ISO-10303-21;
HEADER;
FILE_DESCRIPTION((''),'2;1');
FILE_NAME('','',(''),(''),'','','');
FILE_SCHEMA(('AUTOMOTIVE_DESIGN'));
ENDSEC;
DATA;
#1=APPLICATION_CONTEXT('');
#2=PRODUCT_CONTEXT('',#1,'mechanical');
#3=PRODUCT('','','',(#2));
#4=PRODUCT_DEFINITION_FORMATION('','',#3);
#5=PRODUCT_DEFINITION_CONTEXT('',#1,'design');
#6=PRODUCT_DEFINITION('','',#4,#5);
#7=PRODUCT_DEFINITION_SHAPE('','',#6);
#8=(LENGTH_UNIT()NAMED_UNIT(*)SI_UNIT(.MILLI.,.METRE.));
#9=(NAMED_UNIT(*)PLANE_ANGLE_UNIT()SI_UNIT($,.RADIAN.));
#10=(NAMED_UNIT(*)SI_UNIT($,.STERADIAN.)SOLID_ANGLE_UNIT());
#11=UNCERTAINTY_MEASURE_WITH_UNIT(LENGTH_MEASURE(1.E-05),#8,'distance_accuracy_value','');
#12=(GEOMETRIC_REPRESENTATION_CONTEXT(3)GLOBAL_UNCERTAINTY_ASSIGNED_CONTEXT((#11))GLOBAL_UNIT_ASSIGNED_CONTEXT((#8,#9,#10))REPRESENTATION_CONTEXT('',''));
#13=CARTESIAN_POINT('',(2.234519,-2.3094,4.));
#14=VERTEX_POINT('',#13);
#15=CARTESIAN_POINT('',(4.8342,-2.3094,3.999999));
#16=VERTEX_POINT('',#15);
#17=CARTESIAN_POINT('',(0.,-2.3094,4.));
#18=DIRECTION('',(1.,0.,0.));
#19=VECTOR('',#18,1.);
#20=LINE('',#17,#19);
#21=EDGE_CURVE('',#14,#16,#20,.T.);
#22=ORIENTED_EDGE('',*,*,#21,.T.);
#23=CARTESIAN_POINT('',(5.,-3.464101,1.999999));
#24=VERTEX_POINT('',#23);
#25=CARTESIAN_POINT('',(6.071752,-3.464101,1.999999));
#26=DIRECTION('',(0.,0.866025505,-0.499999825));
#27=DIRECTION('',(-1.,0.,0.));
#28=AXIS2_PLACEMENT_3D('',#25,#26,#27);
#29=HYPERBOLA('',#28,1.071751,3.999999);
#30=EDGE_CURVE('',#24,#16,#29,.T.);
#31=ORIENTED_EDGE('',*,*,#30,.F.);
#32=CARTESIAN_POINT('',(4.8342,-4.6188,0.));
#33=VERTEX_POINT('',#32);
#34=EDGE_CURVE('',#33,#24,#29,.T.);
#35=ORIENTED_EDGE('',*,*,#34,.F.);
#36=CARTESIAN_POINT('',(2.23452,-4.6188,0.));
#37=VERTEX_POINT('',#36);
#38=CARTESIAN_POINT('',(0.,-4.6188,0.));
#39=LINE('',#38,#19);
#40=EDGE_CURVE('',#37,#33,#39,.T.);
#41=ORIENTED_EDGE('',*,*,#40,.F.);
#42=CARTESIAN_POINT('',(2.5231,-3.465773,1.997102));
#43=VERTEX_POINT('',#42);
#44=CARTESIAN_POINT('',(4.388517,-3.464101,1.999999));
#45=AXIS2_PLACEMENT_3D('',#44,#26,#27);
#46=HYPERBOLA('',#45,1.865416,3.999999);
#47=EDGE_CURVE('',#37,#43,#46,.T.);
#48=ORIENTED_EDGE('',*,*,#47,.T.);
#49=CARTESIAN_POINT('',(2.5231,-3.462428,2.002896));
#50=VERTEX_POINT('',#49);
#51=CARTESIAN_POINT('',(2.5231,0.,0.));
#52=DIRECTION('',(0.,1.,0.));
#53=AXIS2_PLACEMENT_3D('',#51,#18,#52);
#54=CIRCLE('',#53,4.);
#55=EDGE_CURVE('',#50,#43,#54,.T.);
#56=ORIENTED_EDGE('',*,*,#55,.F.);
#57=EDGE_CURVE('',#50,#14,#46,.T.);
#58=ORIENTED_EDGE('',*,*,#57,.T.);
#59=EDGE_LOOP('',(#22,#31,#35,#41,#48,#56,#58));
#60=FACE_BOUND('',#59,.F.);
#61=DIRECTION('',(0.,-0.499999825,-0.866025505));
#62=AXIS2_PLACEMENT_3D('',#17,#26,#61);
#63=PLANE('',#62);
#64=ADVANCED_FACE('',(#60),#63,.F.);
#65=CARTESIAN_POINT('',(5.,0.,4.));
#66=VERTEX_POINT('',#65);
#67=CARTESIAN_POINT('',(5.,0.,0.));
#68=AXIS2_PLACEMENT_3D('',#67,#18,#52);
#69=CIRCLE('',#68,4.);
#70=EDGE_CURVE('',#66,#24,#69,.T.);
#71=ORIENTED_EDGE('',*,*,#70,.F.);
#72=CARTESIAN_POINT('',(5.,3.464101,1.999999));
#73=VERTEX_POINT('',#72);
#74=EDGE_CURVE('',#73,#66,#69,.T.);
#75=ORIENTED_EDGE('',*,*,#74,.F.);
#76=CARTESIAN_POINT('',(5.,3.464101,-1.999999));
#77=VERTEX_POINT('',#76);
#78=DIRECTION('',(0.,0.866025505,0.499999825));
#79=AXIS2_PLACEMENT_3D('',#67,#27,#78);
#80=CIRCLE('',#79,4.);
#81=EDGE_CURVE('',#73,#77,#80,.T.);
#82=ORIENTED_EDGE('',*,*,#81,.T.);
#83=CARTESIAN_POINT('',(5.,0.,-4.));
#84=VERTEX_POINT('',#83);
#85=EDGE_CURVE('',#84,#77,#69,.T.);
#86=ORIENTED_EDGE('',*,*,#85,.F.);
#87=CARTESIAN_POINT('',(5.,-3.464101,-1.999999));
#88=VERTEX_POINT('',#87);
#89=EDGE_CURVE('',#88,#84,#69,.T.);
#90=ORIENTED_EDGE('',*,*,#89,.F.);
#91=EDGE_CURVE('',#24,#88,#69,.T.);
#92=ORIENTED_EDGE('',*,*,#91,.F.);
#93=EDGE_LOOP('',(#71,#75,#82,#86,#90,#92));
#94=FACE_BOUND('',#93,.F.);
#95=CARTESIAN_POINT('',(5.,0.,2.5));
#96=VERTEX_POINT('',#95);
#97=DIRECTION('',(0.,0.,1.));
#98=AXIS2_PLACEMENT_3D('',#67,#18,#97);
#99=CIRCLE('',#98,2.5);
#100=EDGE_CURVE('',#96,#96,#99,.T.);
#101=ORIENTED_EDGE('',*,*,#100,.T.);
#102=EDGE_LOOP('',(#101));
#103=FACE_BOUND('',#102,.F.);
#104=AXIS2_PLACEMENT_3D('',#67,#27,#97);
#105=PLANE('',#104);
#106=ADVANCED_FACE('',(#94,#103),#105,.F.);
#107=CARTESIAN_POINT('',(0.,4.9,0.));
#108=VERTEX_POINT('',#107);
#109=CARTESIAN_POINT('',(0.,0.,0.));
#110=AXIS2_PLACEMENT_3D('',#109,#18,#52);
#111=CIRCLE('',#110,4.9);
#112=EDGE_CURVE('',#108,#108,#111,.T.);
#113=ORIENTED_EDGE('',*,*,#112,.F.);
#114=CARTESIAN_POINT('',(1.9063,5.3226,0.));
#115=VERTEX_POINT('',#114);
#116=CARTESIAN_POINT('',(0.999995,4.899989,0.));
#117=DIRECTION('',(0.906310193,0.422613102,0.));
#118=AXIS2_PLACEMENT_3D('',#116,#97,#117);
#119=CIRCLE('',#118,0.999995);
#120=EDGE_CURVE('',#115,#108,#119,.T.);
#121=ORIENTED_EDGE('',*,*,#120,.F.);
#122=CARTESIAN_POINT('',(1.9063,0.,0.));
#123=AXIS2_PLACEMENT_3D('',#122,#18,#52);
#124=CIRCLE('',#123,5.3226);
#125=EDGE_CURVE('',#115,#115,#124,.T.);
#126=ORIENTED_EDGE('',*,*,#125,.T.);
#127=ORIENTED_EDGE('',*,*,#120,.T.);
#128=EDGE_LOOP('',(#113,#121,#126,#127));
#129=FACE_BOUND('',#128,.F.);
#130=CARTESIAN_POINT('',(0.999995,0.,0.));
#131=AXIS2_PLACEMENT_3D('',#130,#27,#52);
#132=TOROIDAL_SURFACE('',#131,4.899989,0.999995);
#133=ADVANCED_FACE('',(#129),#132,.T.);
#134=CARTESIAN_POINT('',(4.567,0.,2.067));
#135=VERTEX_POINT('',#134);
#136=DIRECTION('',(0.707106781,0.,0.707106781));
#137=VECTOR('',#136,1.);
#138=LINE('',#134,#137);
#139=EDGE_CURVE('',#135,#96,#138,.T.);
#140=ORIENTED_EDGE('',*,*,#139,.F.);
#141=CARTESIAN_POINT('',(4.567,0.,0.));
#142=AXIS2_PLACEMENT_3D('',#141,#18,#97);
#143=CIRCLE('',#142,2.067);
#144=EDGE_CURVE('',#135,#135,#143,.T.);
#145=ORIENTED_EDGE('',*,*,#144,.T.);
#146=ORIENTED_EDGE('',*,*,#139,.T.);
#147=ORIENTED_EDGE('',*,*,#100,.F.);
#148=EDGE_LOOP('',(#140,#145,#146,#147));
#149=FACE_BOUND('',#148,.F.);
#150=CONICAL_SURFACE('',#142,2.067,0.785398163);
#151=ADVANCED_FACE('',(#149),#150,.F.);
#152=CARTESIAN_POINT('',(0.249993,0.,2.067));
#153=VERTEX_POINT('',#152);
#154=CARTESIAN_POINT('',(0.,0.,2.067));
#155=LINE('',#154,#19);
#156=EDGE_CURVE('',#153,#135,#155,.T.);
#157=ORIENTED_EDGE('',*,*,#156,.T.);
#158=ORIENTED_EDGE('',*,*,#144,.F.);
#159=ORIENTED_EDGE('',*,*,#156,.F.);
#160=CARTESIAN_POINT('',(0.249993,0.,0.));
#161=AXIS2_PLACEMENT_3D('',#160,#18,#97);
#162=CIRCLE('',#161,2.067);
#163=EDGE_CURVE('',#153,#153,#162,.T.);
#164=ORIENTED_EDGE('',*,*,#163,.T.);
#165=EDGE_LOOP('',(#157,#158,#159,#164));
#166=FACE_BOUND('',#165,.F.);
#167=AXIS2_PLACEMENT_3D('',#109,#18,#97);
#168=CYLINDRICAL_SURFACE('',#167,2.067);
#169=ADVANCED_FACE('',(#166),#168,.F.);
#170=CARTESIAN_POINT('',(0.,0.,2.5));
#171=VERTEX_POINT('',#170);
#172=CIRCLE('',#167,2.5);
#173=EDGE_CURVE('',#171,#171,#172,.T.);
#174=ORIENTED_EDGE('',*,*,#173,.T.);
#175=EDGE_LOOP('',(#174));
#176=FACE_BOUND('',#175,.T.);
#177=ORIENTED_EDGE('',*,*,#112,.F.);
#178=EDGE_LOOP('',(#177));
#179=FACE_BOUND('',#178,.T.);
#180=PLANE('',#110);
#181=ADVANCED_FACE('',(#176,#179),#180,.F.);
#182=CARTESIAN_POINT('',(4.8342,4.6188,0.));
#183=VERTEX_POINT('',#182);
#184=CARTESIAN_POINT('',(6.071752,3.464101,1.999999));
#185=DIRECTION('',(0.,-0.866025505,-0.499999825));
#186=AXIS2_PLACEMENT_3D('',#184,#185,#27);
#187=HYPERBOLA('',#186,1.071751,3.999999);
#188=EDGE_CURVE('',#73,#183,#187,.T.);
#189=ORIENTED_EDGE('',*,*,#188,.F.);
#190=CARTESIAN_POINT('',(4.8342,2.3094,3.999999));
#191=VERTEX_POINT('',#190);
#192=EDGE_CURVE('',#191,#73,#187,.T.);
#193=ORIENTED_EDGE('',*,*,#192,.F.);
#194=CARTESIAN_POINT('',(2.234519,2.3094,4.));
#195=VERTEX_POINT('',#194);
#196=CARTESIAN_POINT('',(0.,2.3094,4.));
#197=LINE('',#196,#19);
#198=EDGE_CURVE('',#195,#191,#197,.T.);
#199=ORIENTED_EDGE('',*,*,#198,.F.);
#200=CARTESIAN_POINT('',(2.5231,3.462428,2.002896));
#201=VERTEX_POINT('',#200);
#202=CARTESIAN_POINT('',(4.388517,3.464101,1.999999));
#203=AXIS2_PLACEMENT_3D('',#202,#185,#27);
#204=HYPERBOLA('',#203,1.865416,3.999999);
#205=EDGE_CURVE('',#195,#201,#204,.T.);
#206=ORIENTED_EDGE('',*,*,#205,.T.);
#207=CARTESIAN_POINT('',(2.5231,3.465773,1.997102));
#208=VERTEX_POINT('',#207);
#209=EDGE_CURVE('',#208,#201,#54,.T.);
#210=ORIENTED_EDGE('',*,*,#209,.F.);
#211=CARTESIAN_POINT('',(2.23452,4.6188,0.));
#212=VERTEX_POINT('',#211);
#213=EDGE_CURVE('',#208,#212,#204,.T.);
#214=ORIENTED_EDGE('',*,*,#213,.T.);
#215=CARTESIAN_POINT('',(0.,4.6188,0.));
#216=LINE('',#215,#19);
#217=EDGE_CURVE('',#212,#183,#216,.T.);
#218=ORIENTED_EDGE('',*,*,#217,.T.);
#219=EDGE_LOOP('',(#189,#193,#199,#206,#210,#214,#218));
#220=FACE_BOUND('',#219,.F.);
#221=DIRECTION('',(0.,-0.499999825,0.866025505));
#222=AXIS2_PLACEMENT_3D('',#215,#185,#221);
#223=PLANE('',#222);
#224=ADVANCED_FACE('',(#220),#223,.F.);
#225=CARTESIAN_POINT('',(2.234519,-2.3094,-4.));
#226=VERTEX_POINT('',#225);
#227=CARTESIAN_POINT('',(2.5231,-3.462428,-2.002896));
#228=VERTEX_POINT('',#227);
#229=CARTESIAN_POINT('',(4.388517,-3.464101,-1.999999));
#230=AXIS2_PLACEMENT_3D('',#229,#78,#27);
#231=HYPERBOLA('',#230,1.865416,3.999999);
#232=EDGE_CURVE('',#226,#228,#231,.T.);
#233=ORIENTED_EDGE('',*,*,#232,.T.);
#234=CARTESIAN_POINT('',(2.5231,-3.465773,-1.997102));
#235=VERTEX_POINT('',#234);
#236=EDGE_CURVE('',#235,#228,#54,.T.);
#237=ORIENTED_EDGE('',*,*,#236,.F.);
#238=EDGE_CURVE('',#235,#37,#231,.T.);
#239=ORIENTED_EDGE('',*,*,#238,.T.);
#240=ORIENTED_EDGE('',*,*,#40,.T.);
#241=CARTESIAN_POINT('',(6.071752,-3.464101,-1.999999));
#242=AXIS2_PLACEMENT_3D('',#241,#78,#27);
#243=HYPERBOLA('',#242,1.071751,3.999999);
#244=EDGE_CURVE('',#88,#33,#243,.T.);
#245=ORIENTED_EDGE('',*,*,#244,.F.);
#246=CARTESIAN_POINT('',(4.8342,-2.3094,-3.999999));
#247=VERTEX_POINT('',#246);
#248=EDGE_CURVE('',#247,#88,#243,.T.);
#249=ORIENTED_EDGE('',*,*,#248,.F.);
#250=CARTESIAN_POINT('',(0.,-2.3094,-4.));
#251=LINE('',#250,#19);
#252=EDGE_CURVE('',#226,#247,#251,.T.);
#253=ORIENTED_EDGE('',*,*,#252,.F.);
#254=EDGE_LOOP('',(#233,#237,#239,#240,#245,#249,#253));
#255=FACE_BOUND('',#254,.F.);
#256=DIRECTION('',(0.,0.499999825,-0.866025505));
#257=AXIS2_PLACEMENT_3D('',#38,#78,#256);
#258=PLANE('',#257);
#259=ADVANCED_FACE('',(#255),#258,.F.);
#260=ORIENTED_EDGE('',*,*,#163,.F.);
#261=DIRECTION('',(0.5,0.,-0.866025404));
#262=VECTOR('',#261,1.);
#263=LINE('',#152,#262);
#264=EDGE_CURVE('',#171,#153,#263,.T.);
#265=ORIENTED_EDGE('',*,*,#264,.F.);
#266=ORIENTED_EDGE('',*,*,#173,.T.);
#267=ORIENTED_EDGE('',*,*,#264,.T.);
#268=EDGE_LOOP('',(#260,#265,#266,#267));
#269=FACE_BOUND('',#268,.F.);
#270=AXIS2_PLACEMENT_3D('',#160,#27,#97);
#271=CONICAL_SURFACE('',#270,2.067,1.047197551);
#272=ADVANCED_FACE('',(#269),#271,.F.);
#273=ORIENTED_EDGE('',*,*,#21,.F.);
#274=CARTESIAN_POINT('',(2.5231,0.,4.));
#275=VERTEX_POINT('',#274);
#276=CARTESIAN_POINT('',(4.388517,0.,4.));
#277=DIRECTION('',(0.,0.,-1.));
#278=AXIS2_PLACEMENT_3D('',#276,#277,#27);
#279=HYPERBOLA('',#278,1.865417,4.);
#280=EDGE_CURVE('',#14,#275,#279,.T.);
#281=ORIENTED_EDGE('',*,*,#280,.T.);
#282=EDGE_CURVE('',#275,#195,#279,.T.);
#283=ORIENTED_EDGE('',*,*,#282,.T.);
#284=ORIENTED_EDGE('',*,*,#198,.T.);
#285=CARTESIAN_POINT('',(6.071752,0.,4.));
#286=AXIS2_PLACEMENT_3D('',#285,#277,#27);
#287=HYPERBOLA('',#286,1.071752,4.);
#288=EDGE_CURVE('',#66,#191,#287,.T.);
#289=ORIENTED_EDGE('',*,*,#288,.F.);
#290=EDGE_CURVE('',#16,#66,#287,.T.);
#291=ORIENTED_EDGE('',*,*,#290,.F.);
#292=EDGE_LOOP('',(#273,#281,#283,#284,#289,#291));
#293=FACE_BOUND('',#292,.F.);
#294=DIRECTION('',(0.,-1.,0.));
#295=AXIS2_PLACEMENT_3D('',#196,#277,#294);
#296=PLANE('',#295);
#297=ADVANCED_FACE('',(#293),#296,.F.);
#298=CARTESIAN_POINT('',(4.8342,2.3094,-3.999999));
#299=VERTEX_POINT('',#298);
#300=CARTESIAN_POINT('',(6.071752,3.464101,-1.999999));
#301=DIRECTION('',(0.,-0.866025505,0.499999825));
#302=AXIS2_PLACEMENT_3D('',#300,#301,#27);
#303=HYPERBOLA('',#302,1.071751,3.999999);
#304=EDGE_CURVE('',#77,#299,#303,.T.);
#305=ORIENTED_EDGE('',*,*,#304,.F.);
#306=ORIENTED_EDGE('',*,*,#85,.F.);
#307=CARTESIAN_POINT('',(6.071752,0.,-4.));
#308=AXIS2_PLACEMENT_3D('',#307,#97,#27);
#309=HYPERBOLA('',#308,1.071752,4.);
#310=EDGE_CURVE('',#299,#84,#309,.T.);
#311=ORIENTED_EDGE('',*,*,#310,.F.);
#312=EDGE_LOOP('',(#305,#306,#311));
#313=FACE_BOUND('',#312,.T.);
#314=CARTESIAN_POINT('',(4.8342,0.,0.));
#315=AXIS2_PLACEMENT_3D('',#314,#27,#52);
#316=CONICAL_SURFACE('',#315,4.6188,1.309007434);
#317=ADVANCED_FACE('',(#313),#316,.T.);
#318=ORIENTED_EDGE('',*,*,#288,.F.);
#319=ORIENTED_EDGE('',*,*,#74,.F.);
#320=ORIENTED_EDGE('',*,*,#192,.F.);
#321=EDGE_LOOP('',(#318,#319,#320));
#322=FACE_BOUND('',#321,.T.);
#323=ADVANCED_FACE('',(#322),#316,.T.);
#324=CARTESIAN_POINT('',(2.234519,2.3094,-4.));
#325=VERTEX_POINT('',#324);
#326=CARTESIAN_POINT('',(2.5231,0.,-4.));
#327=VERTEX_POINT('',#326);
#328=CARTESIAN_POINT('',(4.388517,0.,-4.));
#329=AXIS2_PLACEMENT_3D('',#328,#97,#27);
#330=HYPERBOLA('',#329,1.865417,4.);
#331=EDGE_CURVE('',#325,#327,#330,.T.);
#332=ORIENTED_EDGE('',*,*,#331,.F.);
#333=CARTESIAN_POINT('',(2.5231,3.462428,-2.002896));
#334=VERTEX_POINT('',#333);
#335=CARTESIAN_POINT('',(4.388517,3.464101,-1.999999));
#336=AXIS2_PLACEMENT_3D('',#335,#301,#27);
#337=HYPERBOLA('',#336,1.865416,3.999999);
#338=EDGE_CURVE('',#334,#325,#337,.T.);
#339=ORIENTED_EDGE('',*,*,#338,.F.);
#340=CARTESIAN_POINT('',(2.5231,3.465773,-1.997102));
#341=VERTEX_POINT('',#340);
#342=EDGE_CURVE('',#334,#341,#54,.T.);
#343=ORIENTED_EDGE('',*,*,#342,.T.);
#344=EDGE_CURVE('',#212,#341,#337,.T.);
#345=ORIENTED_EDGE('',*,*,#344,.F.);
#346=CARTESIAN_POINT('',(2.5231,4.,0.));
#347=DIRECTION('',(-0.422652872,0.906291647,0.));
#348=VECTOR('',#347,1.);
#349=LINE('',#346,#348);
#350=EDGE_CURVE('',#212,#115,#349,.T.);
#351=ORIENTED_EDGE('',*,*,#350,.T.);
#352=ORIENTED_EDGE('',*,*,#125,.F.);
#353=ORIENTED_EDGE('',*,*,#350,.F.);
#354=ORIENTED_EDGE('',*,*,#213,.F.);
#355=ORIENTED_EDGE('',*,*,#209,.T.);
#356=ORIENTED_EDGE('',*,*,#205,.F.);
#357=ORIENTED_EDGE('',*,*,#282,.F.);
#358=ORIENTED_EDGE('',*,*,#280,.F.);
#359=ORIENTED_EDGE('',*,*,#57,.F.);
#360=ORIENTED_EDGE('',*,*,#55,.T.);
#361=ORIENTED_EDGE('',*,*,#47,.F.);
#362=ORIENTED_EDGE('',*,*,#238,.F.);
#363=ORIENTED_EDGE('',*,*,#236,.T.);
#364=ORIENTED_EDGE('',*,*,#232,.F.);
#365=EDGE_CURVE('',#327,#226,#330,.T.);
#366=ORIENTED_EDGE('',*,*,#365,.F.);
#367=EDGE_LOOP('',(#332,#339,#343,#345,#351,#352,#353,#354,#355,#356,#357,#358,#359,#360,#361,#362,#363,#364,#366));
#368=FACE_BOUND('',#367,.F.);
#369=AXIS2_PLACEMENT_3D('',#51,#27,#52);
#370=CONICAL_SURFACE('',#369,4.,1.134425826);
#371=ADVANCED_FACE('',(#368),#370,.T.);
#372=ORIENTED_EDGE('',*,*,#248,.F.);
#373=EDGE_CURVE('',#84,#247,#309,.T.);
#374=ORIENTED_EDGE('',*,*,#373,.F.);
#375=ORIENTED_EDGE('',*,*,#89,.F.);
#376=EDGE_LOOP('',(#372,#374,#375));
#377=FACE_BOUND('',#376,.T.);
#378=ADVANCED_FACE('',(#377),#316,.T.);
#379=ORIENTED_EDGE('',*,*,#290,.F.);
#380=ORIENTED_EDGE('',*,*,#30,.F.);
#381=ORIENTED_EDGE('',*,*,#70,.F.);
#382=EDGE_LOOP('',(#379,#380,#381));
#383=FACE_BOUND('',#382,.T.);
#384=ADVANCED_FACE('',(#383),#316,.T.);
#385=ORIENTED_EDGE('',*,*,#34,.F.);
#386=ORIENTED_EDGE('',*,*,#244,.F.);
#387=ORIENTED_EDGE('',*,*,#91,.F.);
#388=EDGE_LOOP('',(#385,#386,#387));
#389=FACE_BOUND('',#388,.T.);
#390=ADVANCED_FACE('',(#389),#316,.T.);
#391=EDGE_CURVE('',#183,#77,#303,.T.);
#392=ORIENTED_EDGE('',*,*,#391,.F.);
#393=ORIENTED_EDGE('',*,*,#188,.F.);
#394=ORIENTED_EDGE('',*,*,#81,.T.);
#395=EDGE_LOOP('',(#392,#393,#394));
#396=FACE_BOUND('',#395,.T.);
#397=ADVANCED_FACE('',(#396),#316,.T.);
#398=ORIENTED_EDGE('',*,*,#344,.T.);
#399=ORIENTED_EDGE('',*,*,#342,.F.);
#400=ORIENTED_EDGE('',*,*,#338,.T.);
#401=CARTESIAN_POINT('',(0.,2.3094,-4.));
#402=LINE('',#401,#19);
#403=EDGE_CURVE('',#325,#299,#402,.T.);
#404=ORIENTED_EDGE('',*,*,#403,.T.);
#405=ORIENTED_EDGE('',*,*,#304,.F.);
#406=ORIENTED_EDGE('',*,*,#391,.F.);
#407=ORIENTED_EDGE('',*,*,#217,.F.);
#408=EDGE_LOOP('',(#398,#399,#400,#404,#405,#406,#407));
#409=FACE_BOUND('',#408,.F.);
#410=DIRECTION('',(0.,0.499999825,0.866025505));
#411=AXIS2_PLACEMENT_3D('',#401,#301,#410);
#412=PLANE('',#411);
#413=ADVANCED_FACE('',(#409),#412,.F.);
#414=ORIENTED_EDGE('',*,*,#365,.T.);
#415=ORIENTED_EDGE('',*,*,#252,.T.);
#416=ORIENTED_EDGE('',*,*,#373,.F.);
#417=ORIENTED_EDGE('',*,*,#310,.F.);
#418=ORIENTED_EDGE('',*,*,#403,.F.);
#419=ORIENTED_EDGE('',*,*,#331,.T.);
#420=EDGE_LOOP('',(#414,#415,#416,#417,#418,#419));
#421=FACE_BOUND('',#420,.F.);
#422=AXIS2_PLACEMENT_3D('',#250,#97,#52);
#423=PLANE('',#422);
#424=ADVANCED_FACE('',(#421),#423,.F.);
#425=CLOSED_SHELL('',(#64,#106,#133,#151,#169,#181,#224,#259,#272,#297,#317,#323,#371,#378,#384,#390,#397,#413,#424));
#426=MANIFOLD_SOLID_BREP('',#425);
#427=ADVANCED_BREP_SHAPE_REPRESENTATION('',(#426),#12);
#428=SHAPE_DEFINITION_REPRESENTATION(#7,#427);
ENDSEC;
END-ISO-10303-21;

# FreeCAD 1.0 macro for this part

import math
import FreeCAD as App
import Part
import Sketcher
from FreeCAD import Vector
Q = App.Units.Quantity


def edges_at(feature, points):
    """Names of the edges that pass closest to the given points."""
    edges = feature.Shape.Edges
    near = lambda p: min(range(len(edges)), key=lambda i: edges[i].distToShape(Part.Vertex(*p))[0])
    return sorted({f"Edge{near(p) + 1}" for p in points})


def add_polygon(sketch, points):
    """Adds a closed chain of lines whose ends are joined by coincident constraints."""
    first, n = sketch.GeometryCount, len(points)
    for a, b in zip(points, points[1:] + points[:1]):
        sketch.addGeometry(Part.LineSegment(App.Vector(*a, 0), App.Vector(*b, 0)), False)
    for i in range(n):
        sketch.addConstraint(Sketcher.Constraint("Coincident", first + i, 2, first + (i + 1) % n, 1))

doc = App.newDocument("Part")
body = doc.addObject("PartDesign::Body", "Body")

# Sketch on XY plane
sketch1 = body.newObject("Sketcher::SketchObject", "Sketch")
sketch1.AttachmentSupport = (doc.getObject("XY_Plane"), [""])
sketch1.MapMode = "FlatFace"
sketch1.addGeometry([
    Part.LineSegment(Vector(0, 4.9, 0), Vector(0, 0, 0)),  # 0
    Part.LineSegment(Vector(0, 0, 0), Vector(2.5, 0, 0)),  # 1
    Part.LineSegment(Vector(2.5, 0, 0), Vector(2.5, 4, 0)),  # 2
    Part.LineSegment(Vector(2.5, 4, 0), Vector(1.9, 5.3, 0)),  # 3
    Part.ArcOfCircle(Part.Circle(Vector(1, 4.9, 0), Vector(0, 0, 1), 1), math.radians(25), math.radians(180)),  # 4
], False)
sketch1.addConstraint([
    Sketcher.Constraint("Coincident", 0, 2, 1, 1),
    Sketcher.Constraint("Coincident", 1, 2, 2, 1),
    Sketcher.Constraint("Coincident", 2, 2, 3, 1),
    Sketcher.Constraint("Tangent", 3, 2, 4, 1),
    Sketcher.Constraint("Tangent", 4, 2, 0, 1),
    Sketcher.Constraint("Vertical", 0),
    Sketcher.Constraint("Horizontal", 1),
    Sketcher.Constraint("Vertical", 2),
    Sketcher.Constraint("Coincident", 0, 2, -1, 1),
    Sketcher.Constraint("Radius", 4, 1.0),
    Sketcher.Constraint("DistanceY", 2, 1, 2, 2, 4.0),
    Sketcher.Constraint("DistanceY", 0, 2, 0, 1, 4.9),
    Sketcher.Constraint("DistanceX", 1, 1, 1, 2, 2.523),
])
revolution = body.newObject("PartDesign::Revolution", "Revolution")
revolution.Profile = sketch1
revolution.ReferenceAxis = (sketch1, ["H_Axis"])
revolution.Angle = 360

# Sketch on YZ plane
sketch2 = body.newObject("Sketcher::SketchObject", "Sketch001")
sketch2.AttachmentSupport = (doc.getObject("YZ_Plane"), [""])
sketch2.MapMode = "FlatFace"
add_polygon(sketch2, [(2.3, -4), (-2.3, -4), (-4.6, 0), (-2.3, 4), (2.3, 4), (4.6, 0)])  # lines 0-5
sketch2.addConstraint([
    Sketcher.Constraint("Horizontal", 0),
    Sketcher.Constraint("Horizontal", 3),
    Sketcher.Constraint("Symmetric", 0, 2, 3, 2, -1, 1),
    Sketcher.Constraint("Symmetric", 1, 2, 4, 2, -1, 1),
    Sketcher.Constraint("PointOnObject", 1, 2, -1),
    Sketcher.Constraint("Parallel", 2, 5),
    Sketcher.Constraint("Vertical", 0, 2, 2, 2),
    Sketcher.Constraint("Angle", 1, Q("120 deg")),
    Sketcher.Constraint("DistanceY", 0, 2, -1, 1, 4.0),
    Sketcher.Constraint("DistanceX", 1, 2, 4, 2, 9.2376),
])
pad1 = body.newObject("PartDesign::Pad", "Pad")
pad1.Profile = sketch2
pad1.Length = 5

# Sketch on XY plane
sketch3 = body.newObject("Sketcher::SketchObject", "Sketch002")
sketch3.AttachmentSupport = (doc.getObject("XY_Plane"), [""])
sketch3.MapMode = "FlatFace"
add_polygon(sketch3, [(5, 4.62), (4.83, 4.62), (5, 4)])  # lines 0-2
sketch3.addConstraint([
    Sketcher.Constraint("Horizontal", 0),
    Sketcher.Constraint("Vertical", 2),
    Sketcher.Constraint("Angle", 1, Q("-75.0006 deg")),
    Sketcher.Constraint("DistanceX", -1, 1, 1, 2, 5.0),
    Sketcher.Constraint("DistanceY", -1, 1, 1, 2, 4.0),
    Sketcher.Constraint("DistanceX", 0, 2, 0, 1, 0.1658),
])
groove = body.newObject("PartDesign::Groove", "Groove")
groove.Profile = sketch3
groove.ReferenceAxis = (sketch3, ["H_Axis"])
groove.Angle = 360

# Sketch on YZ plane
sketch4 = body.newObject("Sketcher::SketchObject", "Sketch003")
sketch4.AttachmentSupport = (doc.getObject("YZ_Plane"), [""])
sketch4.MapMode = "FlatFace"
sketch4.addGeometry(Part.Circle(Vector(0, 0, 0), Vector(0, 0, 1), 2.1), False)
sketch4.addConstraint([
    Sketcher.Constraint("Coincident", 0, 3, -1, 1),
    Sketcher.Constraint("Diameter", 0, 4.134),
])
doc.recompute()
hole = body.newObject("PartDesign::Hole", "Hole")
hole.Profile = sketch4
hole.ThreadType = "None"
hole.Diameter = 4.134
hole.DepthType = "ThroughAll"
hole.Reversed = True
doc.recompute()

chamfer = body.newObject("PartDesign::Chamfer", "Chamfer")
chamfer.Base = (hole, edges_at(hole, [(0, 0, -2.067)]))
chamfer.ChamferType = "Distance and Angle"
chamfer.Size = 0.433
chamfer.Angle = 30
doc.recompute()

chamfer2 = body.newObject("PartDesign::Chamfer", "Chamfer001")
chamfer2.Base = (chamfer, edges_at(chamfer, [(5, 0, -2.067)]))
chamfer2.Size = 0.433

doc.recompute()
